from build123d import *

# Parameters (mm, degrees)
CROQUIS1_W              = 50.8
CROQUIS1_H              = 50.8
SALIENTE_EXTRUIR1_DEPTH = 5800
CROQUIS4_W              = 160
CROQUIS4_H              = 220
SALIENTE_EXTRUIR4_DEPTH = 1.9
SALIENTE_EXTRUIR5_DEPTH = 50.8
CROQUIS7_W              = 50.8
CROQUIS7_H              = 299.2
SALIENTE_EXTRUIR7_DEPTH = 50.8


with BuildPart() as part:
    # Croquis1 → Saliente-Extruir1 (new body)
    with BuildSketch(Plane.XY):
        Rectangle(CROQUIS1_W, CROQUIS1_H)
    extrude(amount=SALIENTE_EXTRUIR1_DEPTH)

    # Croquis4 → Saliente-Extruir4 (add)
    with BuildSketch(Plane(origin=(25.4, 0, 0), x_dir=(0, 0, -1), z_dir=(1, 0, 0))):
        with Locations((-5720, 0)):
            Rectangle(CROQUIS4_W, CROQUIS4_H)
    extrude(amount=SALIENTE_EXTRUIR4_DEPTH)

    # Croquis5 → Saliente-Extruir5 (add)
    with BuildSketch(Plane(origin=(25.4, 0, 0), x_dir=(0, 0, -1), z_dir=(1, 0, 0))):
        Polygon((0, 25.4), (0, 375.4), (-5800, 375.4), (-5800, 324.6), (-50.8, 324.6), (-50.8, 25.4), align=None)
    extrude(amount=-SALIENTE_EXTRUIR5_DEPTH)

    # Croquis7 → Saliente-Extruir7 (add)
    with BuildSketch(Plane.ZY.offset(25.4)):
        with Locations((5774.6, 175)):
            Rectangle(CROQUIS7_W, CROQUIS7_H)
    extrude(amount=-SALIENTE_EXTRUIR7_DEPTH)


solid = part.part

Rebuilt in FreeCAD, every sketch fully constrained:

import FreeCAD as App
import Part
import Sketcher
from FreeCAD import Vector


def add_polygon(sketch, points):
    """Adds a closed chain of lines whose ends are joined by coincident constraints."""
    first, n = sketch.GeometryCount, len(points)
    for a, b in zip(points, points[1:] + points[:1]):
        sketch.addGeometry(Part.LineSegment(App.Vector(*a, 0), App.Vector(*b, 0)), False)
    for i in range(n):
        sketch.addConstraint(Sketcher.Constraint("Coincident", first + i, 2, first + (i + 1) % n, 1))

doc = App.newDocument("Part")
params = doc.addObject("Spreadsheet::Sheet", "Params")
for row, (alias, value) in enumerate([
    ("sketch1_width", "50.8 mm"),
    ("pad1_length", "5800 mm"),
    ("sketch2_width", "220 mm"),
    ("sketch2_height", "160 mm"),
    ("pad2_length", "1.9 mm"),
    ("sketch3_width", "350 mm"),
    ("sketch3_height", "5800 mm"),
    ("sketch3_width2", "50.8 mm"),
    ("pad3_length", "50.8 mm"),
    ("sketch4_width", "299.2 mm"),
    ("sketch4_height", "50.8 mm"),
    ("pad4_length", "50.8 mm"),
], start=1):
    params.set(f"A{row}", alias)
    params.set(f"B{row}", "=" + value)
    params.setAlias(f"B{row}", alias)

body = doc.addObject("PartDesign::Body", "Body")

# Sketch on XY plane
sketch1 = body.newObject("Sketcher::SketchObject", "Sketch")
sketch1.AttachmentSupport = (doc.getObject("XY_Plane"), [""])
sketch1.MapMode = "FlatFace"
add_polygon(sketch1, [(-25.4, 25.4), (-25.4, -25.4), (25.4, -25.4), (25.4, 25.4)])  # lines 0-3
sketch1.addConstraint(Sketcher.Constraint("Vertical", 0))
sketch1.addConstraint(Sketcher.Constraint("Horizontal", 1))
sketch1.addConstraint(Sketcher.Constraint("Vertical", 2))
sketch1.addConstraint(Sketcher.Constraint("Horizontal", 3))
sketch1.addConstraint(Sketcher.Constraint("Symmetric", 0, 2, 2, 2, -1, 1))
sketch1.addConstraint(Sketcher.Constraint("Equal", 3, 0))
sketch1.addConstraint(Sketcher.Constraint("DistanceX", 1, 1, 1, 2, 50.8))
sketch1.setExpression("Constraints[10]", "Params.sketch1_width")
pad1 = body.newObject("PartDesign::Pad", "Pad")
pad1.Profile = sketch1
pad1.setExpression("Length", "Params.pad1_length")

# Sketch on YZ plane
sketch2 = body.newObject("Sketcher::SketchObject", "Sketch001")
sketch2.AttachmentSupport = (doc.getObject("YZ_Plane"), [""])
sketch2.MapMode = "FlatFace"
sketch2.AttachmentOffset = App.Placement(Vector(0, 0, 25.4), App.Rotation())
add_polygon(sketch2, [(110, 5800), (-110, 5800), (-110, 5640), (110, 5640)])  # lines 0-3
sketch2.addConstraint(Sketcher.Constraint("Horizontal", 0))
sketch2.addConstraint(Sketcher.Constraint("Vertical", 1))
sketch2.addConstraint(Sketcher.Constraint("Horizontal", 2))
sketch2.addConstraint(Sketcher.Constraint("Vertical", 3))
sketch2.addConstraint(Sketcher.Constraint("DistanceX", 0, 2, 0, 1, 220.0))
sketch2.addConstraint(Sketcher.Constraint("DistanceY", 1, 2, 1, 1, 160.0))
sketch2.addConstraint(Sketcher.Constraint("DistanceX", 0, 2, -1, 1, 110.0))
sketch2.addConstraint(Sketcher.Constraint("DistanceY", -1, 1, 0, 2, 5800.0))
sketch2.setExpression("Constraints[8]", "Params.sketch2_width")
sketch2.setExpression("Constraints[9]", "Params.sketch2_height")
pad2 = body.newObject("PartDesign::Pad", "Pad001")
pad2.Profile = sketch2
pad2.setExpression("Length", "Params.pad2_length")

# Sketch on YZ plane
sketch3 = body.newObject("Sketcher::SketchObject", "Sketch002")
sketch3.AttachmentSupport = (doc.getObject("YZ_Plane"), [""])
sketch3.MapMode = "FlatFace"
sketch3.AttachmentOffset = App.Placement(Vector(0, 0, 25.4), App.Rotation())
add_polygon(sketch3, [(25.4, 0), (375.4, 0), (375.4, 5800), (324.6, 5800), (324.6, 50.8), (25.4, 50.8)])  # lines 0-5
sketch3.addConstraint(Sketcher.Constraint("Horizontal", 0))
sketch3.addConstraint(Sketcher.Constraint("Vertical", 1))
sketch3.addConstraint(Sketcher.Constraint("Horizontal", 2))
sketch3.addConstraint(Sketcher.Constraint("Vertical", 3))
sketch3.addConstraint(Sketcher.Constraint("Horizontal", 4))
sketch3.addConstraint(Sketcher.Constraint("Vertical", 5))
sketch3.addConstraint(Sketcher.Constraint("PointOnObject", 0, 2, -1))
sketch3.addConstraint(Sketcher.Constraint("Equal", 2, 5))
sketch3.addConstraint(Sketcher.Constraint("DistanceX", 0, 1, 0, 2, 350.0))
sketch3.addConstraint(Sketcher.Constraint("DistanceY", 1, 1, 1, 2, 5800.0))
sketch3.addConstraint(Sketcher.Constraint("DistanceX", 2, 2, 2, 1, 50.8))
sketch3.addConstraint(Sketcher.Constraint("DistanceX", -1, 1, 0, 2, 375.4))
sketch3.setExpression("Constraints[14]", "Params.sketch3_width")
sketch3.setExpression("Constraints[15]", "Params.sketch3_height")
sketch3.setExpression("Constraints[16]", "Params.sketch3_width2")
pad3 = body.newObject("PartDesign::Pad", "Pad002")
pad3.Profile = sketch3
pad3.setExpression("Length", "Params.pad3_length")
pad3.Reversed = True

# Sketch on YZ plane
sketch4 = body.newObject("Sketcher::SketchObject", "Sketch003")
sketch4.AttachmentSupport = (doc.getObject("YZ_Plane"), [""])
sketch4.MapMode = "FlatFace"
sketch4.AttachmentOffset = App.Placement(Vector(0, 0, -25.4), App.Rotation())
add_polygon(sketch4, [(324.6, 5749.2), (25.4, 5749.2), (25.4, 5800), (324.6, 5800)])  # lines 0-3
sketch4.addConstraint(Sketcher.Constraint("Horizontal", 0))
sketch4.addConstraint(Sketcher.Constraint("Vertical", 1))
sketch4.addConstraint(Sketcher.Constraint("Horizontal", 2))
sketch4.addConstraint(Sketcher.Constraint("Vertical", 3))
sketch4.addConstraint(Sketcher.Constraint("DistanceX", 0, 2, 0, 1, 299.2))
sketch4.addConstraint(Sketcher.Constraint("DistanceY", 1, 1, 1, 2, 50.8))
sketch4.addConstraint(Sketcher.Constraint("DistanceY", -1, 1, 1, 2, 5800.0))
sketch4.addConstraint(Sketcher.Constraint("DistanceX", -1, 1, 0, 2, 25.4))
sketch4.setExpression("Constraints[8]", "Params.sketch4_width")
sketch4.setExpression("Constraints[9]", "Params.sketch4_height")
pad4 = body.newObject("PartDesign::Pad", "Pad003")
pad4.Profile = sketch4
pad4.setExpression("Length", "Params.pad4_length")

doc.recompute()
